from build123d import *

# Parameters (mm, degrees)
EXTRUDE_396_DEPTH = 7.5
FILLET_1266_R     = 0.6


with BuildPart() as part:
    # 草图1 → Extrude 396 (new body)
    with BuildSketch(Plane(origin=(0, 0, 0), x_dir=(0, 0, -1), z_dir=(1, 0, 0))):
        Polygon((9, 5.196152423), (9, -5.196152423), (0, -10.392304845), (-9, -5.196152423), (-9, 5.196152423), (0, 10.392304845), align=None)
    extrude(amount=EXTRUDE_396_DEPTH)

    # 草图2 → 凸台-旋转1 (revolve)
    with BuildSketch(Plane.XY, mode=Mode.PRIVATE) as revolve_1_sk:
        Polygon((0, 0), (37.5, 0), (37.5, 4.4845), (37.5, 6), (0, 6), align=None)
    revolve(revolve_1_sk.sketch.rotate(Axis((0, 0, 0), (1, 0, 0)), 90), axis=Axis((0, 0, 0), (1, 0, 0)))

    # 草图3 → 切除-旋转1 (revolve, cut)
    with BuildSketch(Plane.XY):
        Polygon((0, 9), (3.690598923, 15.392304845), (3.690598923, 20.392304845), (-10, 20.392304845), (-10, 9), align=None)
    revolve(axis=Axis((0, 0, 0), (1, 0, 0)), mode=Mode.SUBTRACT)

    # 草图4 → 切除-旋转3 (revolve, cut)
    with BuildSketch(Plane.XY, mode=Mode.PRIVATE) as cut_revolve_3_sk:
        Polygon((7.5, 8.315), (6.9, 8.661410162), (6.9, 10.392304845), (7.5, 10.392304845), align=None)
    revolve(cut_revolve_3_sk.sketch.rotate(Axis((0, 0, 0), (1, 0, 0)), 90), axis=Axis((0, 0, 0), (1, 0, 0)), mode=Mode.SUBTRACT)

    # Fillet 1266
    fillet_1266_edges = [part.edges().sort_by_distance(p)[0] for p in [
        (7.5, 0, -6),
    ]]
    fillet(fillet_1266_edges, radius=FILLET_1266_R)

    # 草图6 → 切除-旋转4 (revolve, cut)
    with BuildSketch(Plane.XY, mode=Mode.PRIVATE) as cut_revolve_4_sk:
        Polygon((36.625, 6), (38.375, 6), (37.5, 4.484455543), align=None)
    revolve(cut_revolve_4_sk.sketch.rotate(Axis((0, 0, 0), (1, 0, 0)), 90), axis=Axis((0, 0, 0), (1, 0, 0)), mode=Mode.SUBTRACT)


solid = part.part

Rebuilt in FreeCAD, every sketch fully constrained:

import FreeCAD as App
import Part
import Sketcher

V = App.Vector
Q = App.Units.Quantity


def edges_at(feature, points):
    """Names of the edges that pass closest to the given points."""
    edges = feature.Shape.Edges
    near = lambda p: min(range(len(edges)), key=lambda i: edges[i].distToShape(Part.Vertex(*p))[0])
    return sorted({f"Edge{near(p) + 1}" for p in points})


def add_polygon(sketch, points):
    """Adds a closed chain of lines whose ends are joined by coincident constraints."""
    first, n = sketch.GeometryCount, len(points)
    for a, b in zip(points, points[1:] + points[:1]):
        sketch.addGeometry(Part.LineSegment(App.Vector(*a, 0), App.Vector(*b, 0)), False)
    for i in range(n):
        sketch.addConstraint(Sketcher.Constraint("Coincident", first + i, 2, first + (i + 1) % n, 1))

doc = App.newDocument("Part")
body = doc.addObject("PartDesign::Body", "Body")

# Sketch on YZ plane
sketch1 = doc.addObject("Sketcher::SketchObject", "Sketch")
body.addObject(sketch1)
sketch1.AttachmentSupport = (doc.YZ_Plane, [""])
sketch1.MapMode = "FlatFace"
add_polygon(sketch1, [(-5, -9), (5, -9), (10, 0), (5, 9), (-5, 9), (-10, 0)])  # lines 0-5
sketch1.addConstraint([
    Sketcher.Constraint("Horizontal", 0),
    Sketcher.Constraint("Horizontal", 3),
    Sketcher.Constraint("Symmetric", 0, 2, 3, 2, -1, 1),
    Sketcher.Constraint("Symmetric", 1, 2, 4, 2, -1, 1),
    Sketcher.Constraint("PointOnObject", 1, 2, -1),
    Sketcher.Constraint("Parallel", 2, 5),
    Sketcher.Constraint("Vertical", 0, 2, 2, 2),
    Sketcher.Constraint("Angle", 1, Q("60 deg")),
    Sketcher.Constraint("DistanceY", 0, 2, -1, 1, 9.0),
    Sketcher.Constraint("DistanceX", 0, 1, 0, 2, 10.392305),
])
pad1 = doc.addObject("PartDesign::Pad", "Pad")
body.addObject(pad1)
pad1.Profile = sketch1
pad1.Length = 7.5

# Sketch on XY plane
sketch2 = doc.addObject("Sketcher::SketchObject", "Sketch001")
body.addObject(sketch2)
sketch2.AttachmentSupport = (doc.XY_Plane, [""])
sketch2.MapMode = "FlatFace"
add_polygon(sketch2, [(0, 0), (38, 0), (38, 6), (0, 6)])  # lines 0-3
sketch2.addConstraint([
    Sketcher.Constraint("Horizontal", 0),
    Sketcher.Constraint("Vertical", 1),
    Sketcher.Constraint("Horizontal", 2),
    Sketcher.Constraint("Vertical", 3),
    Sketcher.Constraint("Coincident", 3, 2, -1, 1),
    Sketcher.Constraint("DistanceY", 1, 1, 1, 2, 6.0),
    Sketcher.Constraint("DistanceX", 0, 1, 0, 2, 37.5),
])
revolution = doc.addObject("PartDesign::Revolution", "Revolution")
body.addObject(revolution)
revolution.Profile = sketch2
revolution.ReferenceAxis = (sketch2, ["H_Axis"])
revolution.Angle = 360

# Sketch on XY plane
sketch3 = doc.addObject("Sketcher::SketchObject", "Sketch002")
body.addObject(sketch3)
sketch3.AttachmentSupport = (doc.XY_Plane, [""])
sketch3.MapMode = "FlatFace"
add_polygon(sketch3, [(0, 9), (4, 15), (4, 20), (-10, 20), (-10, 9)])  # lines 0-4
sketch3.addConstraint([
    Sketcher.Constraint("Vertical", 1),
    Sketcher.Constraint("Horizontal", 2),
    Sketcher.Constraint("Vertical", 3),
    Sketcher.Constraint("Horizontal", 4),
    Sketcher.Constraint("PointOnObject", 4, 2, -2),
    Sketcher.Constraint("DistanceX", 4, 1, 4, 2, 10.0),
    Sketcher.Constraint("DistanceY", 1, 1, 1, 2, 5.0),
    Sketcher.Constraint("Angle", 0, Q("60 deg")),
    Sketcher.Constraint("DistanceY", -1, 1, 3, 2, 9.0),
    Sketcher.Constraint("DistanceX", 2, 2, 2, 1, 13.690599),
])
groove = doc.addObject("PartDesign::Groove", "Groove")
body.addObject(groove)
groove.Profile = sketch3
groove.ReferenceAxis = (sketch3, ["H_Axis"])
groove.Angle = 360

# Sketch on XY plane
sketch4 = doc.addObject("Sketcher::SketchObject", "Sketch003")
body.addObject(sketch4)
sketch4.AttachmentSupport = (doc.XY_Plane, [""])
sketch4.MapMode = "FlatFace"
add_polygon(sketch4, [(6.9, 8.7), (7.5, 8.3), (7.5, 10.4), (6.9, 10.4)])  # lines 0-3
sketch4.addConstraint([
    Sketcher.Constraint("Vertical", 1),
    Sketcher.Constraint("Horizontal", 2),
    Sketcher.Constraint("Vertical", 3),
    Sketcher.Constraint("Angle", 0, Q("-30 deg")),
    Sketcher.Constraint("DistanceX", 2, 2, 2, 1, 0.6),
    Sketcher.Constraint("DistanceX", -1, 1, 0, 2, 7.5),
    Sketcher.Constraint("DistanceY", -1, 1, 0, 2, 8.315),
    Sketcher.Constraint("DistanceY", 1, 1, 1, 2, 2.077305),
])
groove2 = doc.addObject("PartDesign::Groove", "Groove001")
body.addObject(groove2)
groove2.Profile = sketch4
groove2.ReferenceAxis = (sketch4, ["H_Axis"])
groove2.Angle = 360
doc.recompute()

fillet = doc.addObject("PartDesign::Fillet", "Fillet")
body.addObject(fillet)
fillet.Base = (groove2, edges_at(groove2, [(7.5, 0, -6)]))
fillet.Radius = 0.6

# Sketch on XY plane
sketch5 = doc.addObject("Sketcher::SketchObject", "Sketch004")
body.addObject(sketch5)
sketch5.AttachmentSupport = (doc.XY_Plane, [""])
sketch5.MapMode = "FlatFace"
add_polygon(sketch5, [(38.4, 6), (36.6, 6), (37.5, 4.5)])  # lines 0-2
sketch5.addConstraint([
    Sketcher.Constraint("Horizontal", 0),
    Sketcher.Constraint("Equal", 1, 2),
    Sketcher.Constraint("Angle", 1, Q("-60 deg")),
    Sketcher.Constraint("DistanceY", -1, 1, 0, 2, 6.0),
    Sketcher.Constraint("DistanceX", 0, 2, 0, 1, 1.75),
    Sketcher.Constraint("DistanceX", -1, 1, 1, 2, 37.5),
])
groove3 = doc.addObject("PartDesign::Groove", "Groove002")
body.addObject(groove3)
groove3.Profile = sketch5
groove3.ReferenceAxis = (sketch5, ["H_Axis"])
groove3.Angle = 360

doc.recompute()
